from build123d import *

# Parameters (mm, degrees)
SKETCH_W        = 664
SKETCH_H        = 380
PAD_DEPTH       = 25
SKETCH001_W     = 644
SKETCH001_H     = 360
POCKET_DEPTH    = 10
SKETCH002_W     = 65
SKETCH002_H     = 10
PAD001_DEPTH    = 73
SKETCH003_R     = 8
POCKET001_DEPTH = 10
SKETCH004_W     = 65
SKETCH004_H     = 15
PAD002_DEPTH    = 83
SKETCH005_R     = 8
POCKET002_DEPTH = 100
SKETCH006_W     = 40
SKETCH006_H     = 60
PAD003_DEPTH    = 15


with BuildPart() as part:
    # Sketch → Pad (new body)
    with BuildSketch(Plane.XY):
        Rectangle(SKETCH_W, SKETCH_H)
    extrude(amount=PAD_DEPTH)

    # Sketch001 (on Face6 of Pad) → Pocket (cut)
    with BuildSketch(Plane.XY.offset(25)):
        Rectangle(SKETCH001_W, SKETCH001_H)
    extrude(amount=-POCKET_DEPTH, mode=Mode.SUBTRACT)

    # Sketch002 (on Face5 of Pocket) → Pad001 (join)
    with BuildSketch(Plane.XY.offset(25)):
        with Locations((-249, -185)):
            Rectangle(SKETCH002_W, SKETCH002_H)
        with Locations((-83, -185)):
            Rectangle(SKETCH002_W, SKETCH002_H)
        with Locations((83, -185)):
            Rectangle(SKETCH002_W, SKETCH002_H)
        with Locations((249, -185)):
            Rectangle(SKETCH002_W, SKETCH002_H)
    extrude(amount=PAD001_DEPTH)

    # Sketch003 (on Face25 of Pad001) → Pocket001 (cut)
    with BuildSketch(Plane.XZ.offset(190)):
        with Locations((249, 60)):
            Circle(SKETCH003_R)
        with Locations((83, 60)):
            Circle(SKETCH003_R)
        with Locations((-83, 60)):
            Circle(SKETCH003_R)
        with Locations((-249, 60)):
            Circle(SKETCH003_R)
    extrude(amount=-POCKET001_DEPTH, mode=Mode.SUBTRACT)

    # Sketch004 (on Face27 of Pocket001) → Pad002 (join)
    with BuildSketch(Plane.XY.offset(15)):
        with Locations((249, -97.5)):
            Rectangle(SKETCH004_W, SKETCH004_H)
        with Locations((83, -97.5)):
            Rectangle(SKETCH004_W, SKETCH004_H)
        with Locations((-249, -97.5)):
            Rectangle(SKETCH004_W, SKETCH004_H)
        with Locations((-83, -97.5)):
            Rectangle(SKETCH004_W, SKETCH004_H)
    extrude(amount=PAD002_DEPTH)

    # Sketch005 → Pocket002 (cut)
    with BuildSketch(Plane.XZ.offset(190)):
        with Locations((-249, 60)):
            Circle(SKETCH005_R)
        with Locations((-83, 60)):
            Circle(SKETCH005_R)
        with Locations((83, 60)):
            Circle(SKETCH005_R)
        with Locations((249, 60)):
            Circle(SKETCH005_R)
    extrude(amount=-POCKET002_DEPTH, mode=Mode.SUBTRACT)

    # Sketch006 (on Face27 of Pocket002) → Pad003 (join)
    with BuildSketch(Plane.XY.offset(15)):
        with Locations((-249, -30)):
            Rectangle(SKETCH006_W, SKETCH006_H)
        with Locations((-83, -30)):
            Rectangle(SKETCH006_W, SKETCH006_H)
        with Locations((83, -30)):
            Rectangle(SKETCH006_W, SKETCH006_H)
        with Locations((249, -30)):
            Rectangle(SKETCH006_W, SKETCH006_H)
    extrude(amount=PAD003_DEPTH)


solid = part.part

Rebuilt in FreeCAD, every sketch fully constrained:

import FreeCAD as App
import Part
import Sketcher

doc = App.newDocument("Part")
body = doc.addObject("PartDesign::Body", "Body")

# Sketch on XY plane
sketch1 = body.newObject("Sketcher::SketchObject", "Sketch")
sketch1.AttachmentSupport = (doc.getObject("XY_Plane"), [""])
sketch1.MapMode = "FlatFace"
sketch1.addGeometry([
    Part.LineSegment(App.Vector(-332, 190, 0), App.Vector(-332, -190, 0)),
    Part.LineSegment(App.Vector(-332, -190, 0), App.Vector(332, -190, 0)),
    Part.LineSegment(App.Vector(332, -190, 0), App.Vector(332, 190, 0)),
    Part.LineSegment(App.Vector(332, 190, 0), App.Vector(-332, 190, 0)),
], False)
sketch1.addConstraint([
    Sketcher.Constraint("Coincident", 0, 2, 1, 1),
    Sketcher.Constraint("Coincident", 1, 2, 2, 1),
    Sketcher.Constraint("Coincident", 2, 2, 3, 1),
    Sketcher.Constraint("Coincident", 3, 2, 0, 1),
    Sketcher.Constraint("Vertical", 0),
    Sketcher.Constraint("Horizontal", 1),
    Sketcher.Constraint("Vertical", 2),
    Sketcher.Constraint("Horizontal", 3),
    Sketcher.Constraint("Symmetric", 0, 2, 2, 2, -1, 1),
    Sketcher.Constraint("DistanceX", 1, 1, 1, 2, 664.0),
    Sketcher.Constraint("DistanceY", 0, 2, 0, 1, 380.0),
])
pad1 = body.newObject("PartDesign::Pad", "Pad")
pad1.Profile = sketch1
pad1.Length = 25

# Sketch on XY plane
sketch2 = body.newObject("Sketcher::SketchObject", "Sketch001")
sketch2.AttachmentSupport = (doc.getObject("XY_Plane"), [""])
sketch2.MapMode = "FlatFace"
sketch2.AttachmentOffset = App.Placement(App.Vector(0, 0, 25), App.Rotation())
sketch2.addGeometry([
    Part.LineSegment(App.Vector(-322, 180, 0), App.Vector(-322, -180, 0)),
    Part.LineSegment(App.Vector(-322, -180, 0), App.Vector(322, -180, 0)),
    Part.LineSegment(App.Vector(322, -180, 0), App.Vector(322, 180, 0)),
    Part.LineSegment(App.Vector(322, 180, 0), App.Vector(-322, 180, 0)),
], False)
sketch2.addConstraint([
    Sketcher.Constraint("Coincident", 0, 2, 1, 1),
    Sketcher.Constraint("Coincident", 1, 2, 2, 1),
    Sketcher.Constraint("Coincident", 2, 2, 3, 1),
    Sketcher.Constraint("Coincident", 3, 2, 0, 1),
    Sketcher.Constraint("Vertical", 0),
    Sketcher.Constraint("Horizontal", 1),
    Sketcher.Constraint("Vertical", 2),
    Sketcher.Constraint("Horizontal", 3),
    Sketcher.Constraint("Symmetric", 0, 2, 2, 2, -1, 1),
    Sketcher.Constraint("DistanceX", 1, 1, 1, 2, 644.0),
    Sketcher.Constraint("DistanceY", 0, 2, 0, 1, 360.0),
])
pocket1 = body.newObject("PartDesign::Pocket", "Pocket")
pocket1.Profile = sketch2
pocket1.Length = 10

# Sketch on XY plane
sketch3 = body.newObject("Sketcher::SketchObject", "Sketch002")
sketch3.AttachmentSupport = (doc.getObject("XY_Plane"), [""])
sketch3.MapMode = "FlatFace"
sketch3.AttachmentOffset = App.Placement(App.Vector(0, 0, 25), App.Rotation())
sketch3.addGeometry([
    Part.LineSegment(App.Vector(-281.5, -180, 0), App.Vector(-281.5, -190, 0)),  # 0
    Part.LineSegment(App.Vector(-281.5, -190, 0), App.Vector(-216.5, -190, 0)),  # 1
    Part.LineSegment(App.Vector(-216.5, -190, 0), App.Vector(-216.5, -180, 0)),  # 2
    Part.LineSegment(App.Vector(-216.5, -180, 0), App.Vector(-281.5, -180, 0)),  # 3
    Part.LineSegment(App.Vector(-115.5, -180, 0), App.Vector(-115.5, -190, 0)),  # 4
    Part.LineSegment(App.Vector(-115.5, -190, 0), App.Vector(-50.5, -190, 0)),  # 5
    Part.LineSegment(App.Vector(-50.5, -190, 0), App.Vector(-50.5, -180, 0)),  # 6
    Part.LineSegment(App.Vector(-50.5, -180, 0), App.Vector(-115.5, -180, 0)),  # 7
    Part.LineSegment(App.Vector(50.5, -180, 0), App.Vector(50.5, -190, 0)),  # 8
    Part.LineSegment(App.Vector(50.5, -190, 0), App.Vector(115.5, -190, 0)),  # 9
    Part.LineSegment(App.Vector(115.5, -190, 0), App.Vector(115.5, -180, 0)),  # 10
    Part.LineSegment(App.Vector(115.5, -180, 0), App.Vector(50.5, -180, 0)),  # 11
    Part.LineSegment(App.Vector(216.5, -180, 0), App.Vector(216.5, -190, 0)),  # 12
    Part.LineSegment(App.Vector(216.5, -190, 0), App.Vector(281.5, -190, 0)),  # 13
    Part.LineSegment(App.Vector(281.5, -190, 0), App.Vector(281.5, -180, 0)),  # 14
    Part.LineSegment(App.Vector(281.5, -180, 0), App.Vector(216.5, -180, 0)),  # 15
], False)
sketch3.addConstraint([
    Sketcher.Constraint("Coincident", 0, 2, 1, 1),
    Sketcher.Constraint("Coincident", 1, 2, 2, 1),
    Sketcher.Constraint("Coincident", 2, 2, 3, 1),
    Sketcher.Constraint("Coincident", 3, 2, 0, 1),
    Sketcher.Constraint("Coincident", 4, 2, 5, 1),
    Sketcher.Constraint("Coincident", 5, 2, 6, 1),
    Sketcher.Constraint("Coincident", 6, 2, 7, 1),
    Sketcher.Constraint("Coincident", 7, 2, 4, 1),
    Sketcher.Constraint("Coincident", 8, 2, 9, 1),
    Sketcher.Constraint("Coincident", 9, 2, 10, 1),
    Sketcher.Constraint("Coincident", 10, 2, 11, 1),
    Sketcher.Constraint("Coincident", 11, 2, 8, 1),
    Sketcher.Constraint("Coincident", 12, 2, 13, 1),
    Sketcher.Constraint("Coincident", 13, 2, 14, 1),
    Sketcher.Constraint("Coincident", 14, 2, 15, 1),
    Sketcher.Constraint("Coincident", 15, 2, 12, 1),
    Sketcher.Constraint("Vertical", 0),
    Sketcher.Constraint("Horizontal", 1),
    Sketcher.Constraint("Vertical", 2),
    Sketcher.Constraint("Horizontal", 3),
    Sketcher.Constraint("Vertical", 4),
    Sketcher.Constraint("Horizontal", 5),
    Sketcher.Constraint("Vertical", 6),
    Sketcher.Constraint("Horizontal", 7),
    Sketcher.Constraint("Vertical", 8),
    Sketcher.Constraint("Horizontal", 9),
    Sketcher.Constraint("Vertical", 10),
    Sketcher.Constraint("Horizontal", 11),
    Sketcher.Constraint("Vertical", 12),
    Sketcher.Constraint("Horizontal", 13),
    Sketcher.Constraint("Vertical", 14),
    Sketcher.Constraint("Horizontal", 15),
    Sketcher.Constraint("Symmetric", 5, 2, 8, 2, -2),
    Sketcher.Constraint("Symmetric", 7, 2, 10, 2, -2),
    Sketcher.Constraint("Symmetric", 1, 2, 12, 2, -2),
    Sketcher.Constraint("Symmetric", 3, 2, 14, 2, -2),
    Sketcher.Constraint("Horizontal", 1, 2, 4, 2),
    Sketcher.Constraint("Horizontal", 3, 2, 6, 2),
    Sketcher.Constraint("Equal", 3, 5),
    Sketcher.Constraint("DistanceX", 1, 1, 1, 2, 65.0),
    Sketcher.Constraint("DistanceY", 0, 2, 0, 1, 10.0),
    Sketcher.Constraint("DistanceY", 0, 2, -1, 1, 190.0),
    Sketcher.Constraint("DistanceX", 1, 2, 4, 2, 101.0),
    Sketcher.Constraint("DistanceX", 5, 2, 8, 2, 101.0),
])
pad2 = body.newObject("PartDesign::Pad", "Pad001")
pad2.Profile = sketch3
pad2.Length = 73

# Sketch on XZ plane
sketch4 = body.newObject("Sketcher::SketchObject", "Sketch003")
sketch4.AttachmentSupport = (doc.getObject("XZ_Plane"), [""])
sketch4.MapMode = "FlatFace"
sketch4.AttachmentOffset = App.Placement(App.Vector(0, 0, 190), App.Rotation())
sketch4.addGeometry([
    Part.Circle(App.Vector(249, 60, 0), App.Vector(0, 0, 1), 8),
    Part.Circle(App.Vector(83, 60, 0), App.Vector(0, 0, 1), 8),
    Part.Circle(App.Vector(-83, 60, 0), App.Vector(0, 0, 1), 8),
    Part.Circle(App.Vector(-249, 60, 0), App.Vector(0, 0, 1), 8),
], False)
sketch4.addConstraint([
    Sketcher.Constraint("Equal", 0, 1),
    Sketcher.Constraint("Equal", 1, 2),
    Sketcher.Constraint("Equal", 2, 3),
    Sketcher.Constraint("Symmetric", 1, 3, 2, 3, -2),
    Sketcher.Constraint("Symmetric", 0, 3, 3, 3, -2),
    Sketcher.Constraint("Horizontal", 0, 3, 1, 3),
    Sketcher.Constraint("Diameter", 0, 16.0),
    Sketcher.Constraint("DistanceX", -1, 1, 0, 3, 249.0),
    Sketcher.Constraint("DistanceY", -1, 1, 0, 3, 60.0),
    Sketcher.Constraint("DistanceX", -1, 1, 1, 3, 83.0),
])
pocket2 = body.newObject("PartDesign::Pocket", "Pocket001")
pocket2.Profile = sketch4
pocket2.Length = 10

# Sketch on XY plane
sketch5 = body.newObject("Sketcher::SketchObject", "Sketch004")
sketch5.AttachmentSupport = (doc.getObject("XY_Plane"), [""])
sketch5.MapMode = "FlatFace"
sketch5.AttachmentOffset = App.Placement(App.Vector(0, 0, 15), App.Rotation())
sketch5.addGeometry([
    Part.LineSegment(App.Vector(216.5, -90, 0), App.Vector(216.5, -105, 0)),  # 0
    Part.LineSegment(App.Vector(216.5, -105, 0), App.Vector(281.5, -105, 0)),  # 1
    Part.LineSegment(App.Vector(281.5, -105, 0), App.Vector(281.5, -90, 0)),  # 2
    Part.LineSegment(App.Vector(281.5, -90, 0), App.Vector(216.5, -90, 0)),  # 3
    Part.LineSegment(App.Vector(50.5, -90, 0), App.Vector(50.5, -105, 0)),  # 4
    Part.LineSegment(App.Vector(50.5, -105, 0), App.Vector(115.5, -105, 0)),  # 5
    Part.LineSegment(App.Vector(115.5, -105, 0), App.Vector(115.5, -90, 0)),  # 6
    Part.LineSegment(App.Vector(115.5, -90, 0), App.Vector(50.5, -90, 0)),  # 7
    Part.LineSegment(App.Vector(-281.5, -90, 0), App.Vector(-281.5, -105, 0)),  # 8
    Part.LineSegment(App.Vector(-281.5, -105, 0), App.Vector(-216.5, -105, 0)),  # 9
    Part.LineSegment(App.Vector(-216.5, -105, 0), App.Vector(-216.5, -90, 0)),  # 10
    Part.LineSegment(App.Vector(-216.5, -90, 0), App.Vector(-281.5, -90, 0)),  # 11
    Part.LineSegment(App.Vector(-115.5, -90, 0), App.Vector(-115.5, -105, 0)),  # 12
    Part.LineSegment(App.Vector(-115.5, -105, 0), App.Vector(-50.5, -105, 0)),  # 13
    Part.LineSegment(App.Vector(-50.5, -105, 0), App.Vector(-50.5, -90, 0)),  # 14
    Part.LineSegment(App.Vector(-50.5, -90, 0), App.Vector(-115.5, -90, 0)),  # 15
], False)
sketch5.addConstraint([
    Sketcher.Constraint("Coincident", 0, 2, 1, 1),
    Sketcher.Constraint("Coincident", 1, 2, 2, 1),
    Sketcher.Constraint("Coincident", 2, 2, 3, 1),
    Sketcher.Constraint("Coincident", 3, 2, 0, 1),
    Sketcher.Constraint("Coincident", 4, 2, 5, 1),
    Sketcher.Constraint("Coincident", 5, 2, 6, 1),
    Sketcher.Constraint("Coincident", 6, 2, 7, 1),
    Sketcher.Constraint("Coincident", 7, 2, 4, 1),
    Sketcher.Constraint("Coincident", 8, 2, 9, 1),
    Sketcher.Constraint("Coincident", 9, 2, 10, 1),
    Sketcher.Constraint("Coincident", 10, 2, 11, 1),
    Sketcher.Constraint("Coincident", 11, 2, 8, 1),
    Sketcher.Constraint("Coincident", 12, 2, 13, 1),
    Sketcher.Constraint("Coincident", 13, 2, 14, 1),
    Sketcher.Constraint("Coincident", 14, 2, 15, 1),
    Sketcher.Constraint("Coincident", 15, 2, 12, 1),
    Sketcher.Constraint("Vertical", 0),
    Sketcher.Constraint("Horizontal", 1),
    Sketcher.Constraint("Vertical", 2),
    Sketcher.Constraint("Horizontal", 3),
    Sketcher.Constraint("Vertical", 4),
    Sketcher.Constraint("Horizontal", 5),
    Sketcher.Constraint("Vertical", 6),
    Sketcher.Constraint("Horizontal", 7),
    Sketcher.Constraint("Vertical", 8),
    Sketcher.Constraint("Horizontal", 9),
    Sketcher.Constraint("Vertical", 10),
    Sketcher.Constraint("Horizontal", 11),
    Sketcher.Constraint("Vertical", 12),
    Sketcher.Constraint("Horizontal", 13),
    Sketcher.Constraint("Vertical", 14),
    Sketcher.Constraint("Horizontal", 15),
    Sketcher.Constraint("Symmetric", 1, 2, 8, 2, -2),
    Sketcher.Constraint("Symmetric", 3, 2, 10, 2, -2),
    Sketcher.Constraint("Symmetric", 5, 2, 12, 2, -2),
    Sketcher.Constraint("Symmetric", 7, 2, 14, 2, -2),
    Sketcher.Constraint("Horizontal", 1, 2, 4, 2),
    Sketcher.Constraint("Horizontal", 3, 2, 6, 2),
    Sketcher.Constraint("Equal", 3, 5),
    Sketcher.Constraint("DistanceX", 1, 1, 1, 2, 65.0),
    Sketcher.Constraint("DistanceY", 0, 2, 0, 1, 15.0),
    Sketcher.Constraint("DistanceY", 0, 2, -1, 1, 105.0),
    Sketcher.Constraint("DistanceX", 4, 2, 0, 2, 166.0),
    Sketcher.Constraint("DistanceX", 8, 2, 4, 2, 332.0),
])
pad3 = body.newObject("PartDesign::Pad", "Pad002")
pad3.Profile = sketch5
pad3.Length = 83

# Sketch on XZ plane
sketch6 = body.newObject("Sketcher::SketchObject", "Sketch005")
sketch6.AttachmentSupport = (doc.getObject("XZ_Plane"), [""])
sketch6.MapMode = "FlatFace"
sketch6.AttachmentOffset = App.Placement(App.Vector(0, 0, 190), App.Rotation())
sketch6.addGeometry([
    Part.Circle(App.Vector(-249, 60, 0), App.Vector(0, 0, 1), 8),
    Part.Circle(App.Vector(-83, 60, 0), App.Vector(0, 0, 1), 8),
    Part.Circle(App.Vector(83, 60, 0), App.Vector(0, 0, 1), 8),
    Part.Circle(App.Vector(249, 60, 0), App.Vector(0, 0, 1), 8),
], False)
sketch6.addConstraint([
    Sketcher.Constraint("Equal", 0, 1),
    Sketcher.Constraint("Equal", 1, 2),
    Sketcher.Constraint("Equal", 2, 3),
    Sketcher.Constraint("Symmetric", 1, 3, 2, 3, -2),
    Sketcher.Constraint("Symmetric", 0, 3, 3, 3, -2),
    Sketcher.Constraint("Horizontal", 0, 3, 1, 3),
    Sketcher.Constraint("Diameter", 0, 16.0),
    Sketcher.Constraint("DistanceX", 0, 3, -1, 1, 249.0),
    Sketcher.Constraint("DistanceY", -1, 1, 0, 3, 60.0),
    Sketcher.Constraint("DistanceX", 1, 3, -1, 1, 83.0),
])
pocket3 = body.newObject("PartDesign::Pocket", "Pocket002")
pocket3.Profile = sketch6
pocket3.Length = 100

# Sketch on XY plane
sketch7 = body.newObject("Sketcher::SketchObject", "Sketch006")
sketch7.AttachmentSupport = (doc.getObject("XY_Plane"), [""])
sketch7.MapMode = "FlatFace"
sketch7.AttachmentOffset = App.Placement(App.Vector(0, 0, 15), App.Rotation())
sketch7.addGeometry([
    Part.LineSegment(App.Vector(-269, 0, 0), App.Vector(-269, -60, 0)),  # 0
    Part.LineSegment(App.Vector(-269, -60, 0), App.Vector(-229, -60, 0)),  # 1
    Part.LineSegment(App.Vector(-229, -60, 0), App.Vector(-229, 0, 0)),  # 2
    Part.LineSegment(App.Vector(-229, 0, 0), App.Vector(-269, 0, 0)),  # 3
    Part.LineSegment(App.Vector(-103, 0, 0), App.Vector(-103, -60, 0)),  # 4
    Part.LineSegment(App.Vector(-103, -60, 0), App.Vector(-63, -60, 0)),  # 5
    Part.LineSegment(App.Vector(-63, -60, 0), App.Vector(-63, 0, 0)),  # 6
    Part.LineSegment(App.Vector(-63, 0, 0), App.Vector(-103, 0, 0)),  # 7
    Part.LineSegment(App.Vector(63, 0, 0), App.Vector(63, -60, 0)),  # 8
    Part.LineSegment(App.Vector(63, -60, 0), App.Vector(103, -60, 0)),  # 9
    Part.LineSegment(App.Vector(103, -60, 0), App.Vector(103, 0, 0)),  # 10
    Part.LineSegment(App.Vector(103, 0, 0), App.Vector(63, 0, 0)),  # 11
    Part.LineSegment(App.Vector(229, 0, 0), App.Vector(229, -60, 0)),  # 12
    Part.LineSegment(App.Vector(229, -60, 0), App.Vector(269, -60, 0)),  # 13
    Part.LineSegment(App.Vector(269, -60, 0), App.Vector(269, 0, 0)),  # 14
    Part.LineSegment(App.Vector(269, 0, 0), App.Vector(229, 0, 0)),  # 15
], False)
sketch7.addConstraint([
    Sketcher.Constraint("Coincident", 0, 2, 1, 1),
    Sketcher.Constraint("Coincident", 1, 2, 2, 1),
    Sketcher.Constraint("Coincident", 2, 2, 3, 1),
    Sketcher.Constraint("Coincident", 3, 2, 0, 1),
    Sketcher.Constraint("Coincident", 4, 2, 5, 1),
    Sketcher.Constraint("Coincident", 5, 2, 6, 1),
    Sketcher.Constraint("Coincident", 6, 2, 7, 1),
    Sketcher.Constraint("Coincident", 7, 2, 4, 1),
    Sketcher.Constraint("Coincident", 8, 2, 9, 1),
    Sketcher.Constraint("Coincident", 9, 2, 10, 1),
    Sketcher.Constraint("Coincident", 10, 2, 11, 1),
    Sketcher.Constraint("Coincident", 11, 2, 8, 1),
    Sketcher.Constraint("Coincident", 12, 2, 13, 1),
    Sketcher.Constraint("Coincident", 13, 2, 14, 1),
    Sketcher.Constraint("Coincident", 14, 2, 15, 1),
    Sketcher.Constraint("Coincident", 15, 2, 12, 1),
    Sketcher.Constraint("Vertical", 0),
    Sketcher.Constraint("Horizontal", 1),
    Sketcher.Constraint("Vertical", 2),
    Sketcher.Constraint("Horizontal", 3),
    Sketcher.Constraint("Vertical", 4),
    Sketcher.Constraint("Horizontal", 5),
    Sketcher.Constraint("Vertical", 6),
    Sketcher.Constraint("Horizontal", 7),
    Sketcher.Constraint("Vertical", 8),
    Sketcher.Constraint("Horizontal", 9),
    Sketcher.Constraint("Vertical", 10),
    Sketcher.Constraint("Horizontal", 11),
    Sketcher.Constraint("Vertical", 12),
    Sketcher.Constraint("Horizontal", 13),
    Sketcher.Constraint("Vertical", 14),
    Sketcher.Constraint("Horizontal", 15),
    Sketcher.Constraint("Symmetric", 7, 2, 10, 2, -1, 1),
    Sketcher.Constraint("Symmetric", 3, 2, 14, 2, -1, 1),
    Sketcher.Constraint("Symmetric", 5, 2, 8, 2, -2),
    Sketcher.Constraint("Symmetric", 1, 2, 12, 2, -2),
    Sketcher.Constraint("PointOnObject", 2, 2, -1),
    Sketcher.Constraint("PointOnObject", 6, 2, -1),
    Sketcher.Constraint("Horizontal", 1, 2, 4, 2),
    Sketcher.Constraint("Equal", 3, 5),
    Sketcher.Constraint("DistanceX", 1, 1, 1, 2, 40.0),
    Sketcher.Constraint("DistanceY", 0, 2, 0, 1, 60.0),
    Sketcher.Constraint("DistanceX", 0, 2, -1, 1, 269.0),
    Sketcher.Constraint("DistanceX", 4, 2, -1, 1, 103.0),
])
pad4 = body.newObject("PartDesign::Pad", "Pad003")
pad4.Profile = sketch7
pad4.Length = 15

doc.recompute()
